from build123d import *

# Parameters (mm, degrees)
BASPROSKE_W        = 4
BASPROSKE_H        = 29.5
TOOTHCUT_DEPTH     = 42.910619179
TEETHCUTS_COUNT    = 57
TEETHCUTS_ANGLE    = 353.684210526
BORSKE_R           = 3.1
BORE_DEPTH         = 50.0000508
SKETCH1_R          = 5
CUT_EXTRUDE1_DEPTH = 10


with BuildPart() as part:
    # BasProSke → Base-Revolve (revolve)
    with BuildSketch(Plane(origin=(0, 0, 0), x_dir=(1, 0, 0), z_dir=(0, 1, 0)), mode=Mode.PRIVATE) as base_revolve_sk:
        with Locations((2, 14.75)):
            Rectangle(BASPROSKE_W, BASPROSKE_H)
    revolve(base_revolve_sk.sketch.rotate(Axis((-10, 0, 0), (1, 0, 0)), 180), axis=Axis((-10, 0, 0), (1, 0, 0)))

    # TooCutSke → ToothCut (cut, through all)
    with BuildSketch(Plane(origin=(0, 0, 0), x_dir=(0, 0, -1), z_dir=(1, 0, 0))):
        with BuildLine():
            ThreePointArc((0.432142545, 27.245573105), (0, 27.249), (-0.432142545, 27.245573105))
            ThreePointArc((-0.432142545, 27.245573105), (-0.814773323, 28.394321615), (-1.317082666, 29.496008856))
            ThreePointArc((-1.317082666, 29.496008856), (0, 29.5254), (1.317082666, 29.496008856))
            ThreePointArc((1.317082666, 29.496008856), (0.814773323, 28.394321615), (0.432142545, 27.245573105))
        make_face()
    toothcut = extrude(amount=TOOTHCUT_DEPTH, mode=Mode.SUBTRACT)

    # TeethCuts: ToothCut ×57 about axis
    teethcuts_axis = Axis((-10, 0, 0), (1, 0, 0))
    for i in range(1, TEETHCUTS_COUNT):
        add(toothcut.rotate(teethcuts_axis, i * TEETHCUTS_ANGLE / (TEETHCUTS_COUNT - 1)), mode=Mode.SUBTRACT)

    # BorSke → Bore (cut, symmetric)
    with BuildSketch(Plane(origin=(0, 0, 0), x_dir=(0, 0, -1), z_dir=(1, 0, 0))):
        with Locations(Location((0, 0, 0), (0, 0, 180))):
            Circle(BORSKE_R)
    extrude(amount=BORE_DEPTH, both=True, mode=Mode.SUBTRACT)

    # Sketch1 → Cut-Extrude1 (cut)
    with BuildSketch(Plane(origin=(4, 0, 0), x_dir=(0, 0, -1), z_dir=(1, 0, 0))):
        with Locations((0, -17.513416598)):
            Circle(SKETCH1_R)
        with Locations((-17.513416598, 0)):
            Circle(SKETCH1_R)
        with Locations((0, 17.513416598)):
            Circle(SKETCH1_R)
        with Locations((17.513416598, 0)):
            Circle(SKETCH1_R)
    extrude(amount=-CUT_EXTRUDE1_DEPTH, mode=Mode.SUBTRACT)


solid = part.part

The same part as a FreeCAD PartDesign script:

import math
import FreeCAD as App
import Part
import Sketcher
Q = App.Units.Quantity


def add_polygon(sketch, points):
    """Adds a closed chain of lines whose ends are joined by coincident constraints."""
    first, n = sketch.GeometryCount, len(points)
    for a, b in zip(points, points[1:] + points[:1]):
        sketch.addGeometry(Part.LineSegment(App.Vector(*a, 0), App.Vector(*b, 0)), False)
    for i in range(n):
        sketch.addConstraint(Sketcher.Constraint("Coincident", first + i, 2, first + (i + 1) % n, 1))

doc = App.newDocument("Part")
body = doc.addObject("PartDesign::Body", "Body")

sketch1 = body.newObject("Sketcher::SketchObject", "Sketch")
sketch1.AttachmentSupport = (doc.getObject("XZ_Plane"), [""])
sketch1.MapMode = "FlatFace"
add_polygon(sketch1, [(0, -29.5), (0, 0), (4, 0), (4, -29.5)])
sketch1.addConstraint([
    Sketcher.Constraint("Vertical", 0),
    Sketcher.Constraint("Horizontal", 1),
    Sketcher.Constraint("Vertical", 2),
    Sketcher.Constraint("Horizontal", 3),
    Sketcher.Constraint("Coincident", 0, 2, -1, 1),
    Sketcher.Constraint("DistanceX", 1, 1, 1, 2, Q("4 mm")),
    Sketcher.Constraint("DistanceY", 0, 1, 0, 2, Q("29.5 mm")),
])
revolution = body.newObject("PartDesign::Revolution", "Revolution")
revolution.Profile = sketch1
revolution.ReferenceAxis = (sketch1, ["H_Axis"])
revolution.Angle = 360

sketch2 = body.newObject("Sketcher::SketchObject", "Sketch001")
sketch2.AttachmentSupport = (doc.getObject("YZ_Plane"), [""])
sketch2.MapMode = "FlatFace"
sketch2.addGeometry([
    Part.ArcOfCircle(Part.Circle(App.Vector(0, 0, 0), App.Vector(0, 0, 1), 27.2), math.radians(-0.91), math.radians(0.91)),
    Part.ArcOfCircle(Part.Circle(App.Vector(24.2, -11.4, 0), App.Vector(0, 0, 1), 11.4), math.radians(62.45), math.radians(74.62)),
    Part.ArcOfCircle(Part.Circle(App.Vector(0, 0, 0), App.Vector(0, 0, 1), 29.5), math.radians(-2.56), math.radians(2.56)),
    Part.ArcOfCircle(Part.Circle(App.Vector(24.2, 11.4, 0), App.Vector(0, 0, 1), 11.4), math.radians(-74.62), math.radians(-62.45)),
], False)
sketch2.addConstraint([
    Sketcher.Constraint("Coincident", 0, 1, 1, 2),
    Sketcher.Constraint("Coincident", 1, 1, 2, 1),
    Sketcher.Constraint("Coincident", 2, 2, 3, 2),
    Sketcher.Constraint("Coincident", 3, 1, 0, 2),
    Sketcher.Constraint("Coincident", 0, 3, -1, 1),
    Sketcher.Constraint("Coincident", 2, 3, -1, 1),
    Sketcher.Constraint("Equal", 1, 3),
    Sketcher.Constraint("Symmetric", 1, 3, 3, 3, -1),
    Sketcher.Constraint("Radius", 1, Q("11.4 mm")),
    Sketcher.Constraint("Radius", 0, Q("27.249 mm")),
    Sketcher.Constraint("Radius", 2, Q("29.5254 mm")),
    Sketcher.Constraint("DistanceY", 1, 3, -1, 1, Q("11.423992 mm")),
    Sketcher.Constraint("DistanceX", -1, 1, 2, 2, Q("29.496009 mm")),
])
pocket1 = body.newObject("PartDesign::Pocket", "Pocket")
pocket1.Profile = sketch2
pocket1.Type = "ThroughAll"
pocket1.Reversed = True
doc.recompute()

polarpattern = body.newObject("PartDesign::PolarPattern", "PolarPattern")
polarpattern.Originals = [pocket1]
polarpattern.Axis = (doc.getObject("X_Axis"), [""])
polarpattern.Angle = 360
polarpattern.Occurrences = 57
body.Tip = polarpattern

sketch3 = body.newObject("Sketcher::SketchObject", "Sketch002")
sketch3.AttachmentSupport = (doc.getObject("YZ_Plane"), [""])
sketch3.MapMode = "FlatFace"
sketch3.addGeometry(Part.Circle(App.Vector(0, 0, 0), App.Vector(0, 0, 1), 3.1), False)
sketch3.addConstraint([
    Sketcher.Constraint("Coincident", 0, 3, -1, 1),
    Sketcher.Constraint("Diameter", 0, Q("6.2 mm")),
])
pocket2 = body.newObject("PartDesign::Pocket", "Pocket001")
pocket2.Profile = sketch3
pocket2.Length = 100.000102
pocket2.Midplane = True

sketch4 = body.newObject("Sketcher::SketchObject", "Sketch003")
sketch4.AttachmentSupport = (doc.getObject("YZ_Plane"), [""])
sketch4.MapMode = "FlatFace"
sketch4.AttachmentOffset = App.Placement(App.Vector(0, 0, 4), App.Rotation())
sketch4.addGeometry([
    Part.Circle(App.Vector(-18, 0, 0), App.Vector(0, 0, 1), 5),
    Part.Circle(App.Vector(0, 18, 0), App.Vector(0, 0, 1), 5),
    Part.Circle(App.Vector(18, 0, 0), App.Vector(0, 0, 1), 5),
    Part.Circle(App.Vector(0, -18, 0), App.Vector(0, 0, 1), 5),
], False)
sketch4.addConstraint([
    Sketcher.Constraint("Equal", 0, 1),
    Sketcher.Constraint("Equal", 1, 2),
    Sketcher.Constraint("Equal", 2, 3),
    Sketcher.Constraint("Symmetric", 0, 3, 2, 3, -1, 1),
    Sketcher.Constraint("Symmetric", 1, 3, 3, 3, -1, 1),
    Sketcher.Constraint("PointOnObject", 0, 3, -1),
    Sketcher.Constraint("PointOnObject", 1, 3, -2),
    Sketcher.Constraint("Diameter", 0, Q("10 mm")),
    Sketcher.Constraint("DistanceX", 0, 3, -1, 1, Q("17.513417 mm")),
    Sketcher.Constraint("DistanceY", -1, 1, 1, 3, Q("17.513417 mm")),
])
pocket3 = body.newObject("PartDesign::Pocket", "Pocket002")
pocket3.Profile = sketch4
pocket3.Length = 10

doc.recompute()
